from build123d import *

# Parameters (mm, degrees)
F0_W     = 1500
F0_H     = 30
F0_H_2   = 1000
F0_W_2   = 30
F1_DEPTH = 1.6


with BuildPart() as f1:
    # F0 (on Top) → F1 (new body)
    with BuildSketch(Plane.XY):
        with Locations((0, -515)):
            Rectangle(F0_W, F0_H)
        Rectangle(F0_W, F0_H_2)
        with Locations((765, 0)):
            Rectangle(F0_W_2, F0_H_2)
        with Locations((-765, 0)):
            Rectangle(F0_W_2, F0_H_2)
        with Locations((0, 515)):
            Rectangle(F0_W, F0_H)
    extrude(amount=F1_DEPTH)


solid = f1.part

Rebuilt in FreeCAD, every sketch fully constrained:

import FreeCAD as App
import Part
import Sketcher

V = App.Vector
Q = App.Units.Quantity

doc = App.newDocument("Part")
body = doc.addObject("PartDesign::Body", "Body")

# Sketch on XY plane
sketch1 = body.newObject("Sketcher::SketchObject", "Sketch")
sketch1.AttachmentSupport = (doc.getObject("XY_Plane"), [""])
sketch1.MapMode = "FlatFace"
sketch1.addGeometry([
    Part.LineSegment(V(-750, -530, 0), V(750, -530, 0)),  # 0
    Part.LineSegment(V(750, -530, 0), V(750, -500, 0)),  # 1
    Part.LineSegment(V(750, -500, 0), V(780, -500, 0)),  # 2
    Part.LineSegment(V(780, -500, 0), V(780, 500, 0)),  # 3
    Part.LineSegment(V(780, 500, 0), V(750, 500, 0)),  # 4
    Part.LineSegment(V(750, 500, 0), V(750, 530, 0)),  # 5
    Part.LineSegment(V(750, 530, 0), V(-750, 530, 0)),  # 6
    Part.LineSegment(V(-750, 530, 0), V(-750, 500, 0)),  # 7
    Part.LineSegment(V(-750, 500, 0), V(-780, 500, 0)),  # 8
    Part.LineSegment(V(-780, 500, 0), V(-780, -500, 0)),  # 9
    Part.LineSegment(V(-780, -500, 0), V(-750, -500, 0)),  # 10
    Part.LineSegment(V(-750, -500, 0), V(-750, -530, 0)),  # 11
], False)
sketch1.addConstraint([
    Sketcher.Constraint("Coincident", 0, 2, 1, 1),
    Sketcher.Constraint("Coincident", 1, 2, 2, 1),
    Sketcher.Constraint("Coincident", 2, 2, 3, 1),
    Sketcher.Constraint("Coincident", 3, 2, 4, 1),
    Sketcher.Constraint("Coincident", 4, 2, 5, 1),
    Sketcher.Constraint("Coincident", 5, 2, 6, 1),
    Sketcher.Constraint("Coincident", 6, 2, 7, 1),
    Sketcher.Constraint("Coincident", 7, 2, 8, 1),
    Sketcher.Constraint("Coincident", 8, 2, 9, 1),
    Sketcher.Constraint("Coincident", 9, 2, 10, 1),
    Sketcher.Constraint("Coincident", 10, 2, 11, 1),
    Sketcher.Constraint("Coincident", 11, 2, 0, 1),
    Sketcher.Constraint("Horizontal", 0),
    Sketcher.Constraint("Vertical", 1),
    Sketcher.Constraint("Horizontal", 2),
    Sketcher.Constraint("Vertical", 3),
    Sketcher.Constraint("Horizontal", 4),
    Sketcher.Constraint("Vertical", 5),
    Sketcher.Constraint("Horizontal", 6),
    Sketcher.Constraint("Vertical", 7),
    Sketcher.Constraint("Horizontal", 8),
    Sketcher.Constraint("Vertical", 9),
    Sketcher.Constraint("Horizontal", 10),
    Sketcher.Constraint("Vertical", 11),
    Sketcher.Constraint("Symmetric", 0, 2, 6, 2, -1, 1),
    Sketcher.Constraint("Symmetric", 2, 2, 8, 2, -1, 1),
    Sketcher.Constraint("Symmetric", 4, 2, 10, 2, -1, 1),
    Sketcher.Constraint("Symmetric", 4, 2, 7, 2, -2),
    Sketcher.Constraint("Equal", 10, 1),
    Sketcher.Constraint("DistanceX", 0, 1, 0, 2, Q("1500 mm")),
    Sketcher.Constraint("DistanceX", 2, 1, 2, 2, Q("30 mm")),
    Sketcher.Constraint("DistanceY", 3, 1, 3, 2, Q("1000 mm")),
])
pad1 = body.newObject("PartDesign::Pad", "Pad")
pad1.Profile = sketch1
pad1.Length = 1.6

doc.recompute()
